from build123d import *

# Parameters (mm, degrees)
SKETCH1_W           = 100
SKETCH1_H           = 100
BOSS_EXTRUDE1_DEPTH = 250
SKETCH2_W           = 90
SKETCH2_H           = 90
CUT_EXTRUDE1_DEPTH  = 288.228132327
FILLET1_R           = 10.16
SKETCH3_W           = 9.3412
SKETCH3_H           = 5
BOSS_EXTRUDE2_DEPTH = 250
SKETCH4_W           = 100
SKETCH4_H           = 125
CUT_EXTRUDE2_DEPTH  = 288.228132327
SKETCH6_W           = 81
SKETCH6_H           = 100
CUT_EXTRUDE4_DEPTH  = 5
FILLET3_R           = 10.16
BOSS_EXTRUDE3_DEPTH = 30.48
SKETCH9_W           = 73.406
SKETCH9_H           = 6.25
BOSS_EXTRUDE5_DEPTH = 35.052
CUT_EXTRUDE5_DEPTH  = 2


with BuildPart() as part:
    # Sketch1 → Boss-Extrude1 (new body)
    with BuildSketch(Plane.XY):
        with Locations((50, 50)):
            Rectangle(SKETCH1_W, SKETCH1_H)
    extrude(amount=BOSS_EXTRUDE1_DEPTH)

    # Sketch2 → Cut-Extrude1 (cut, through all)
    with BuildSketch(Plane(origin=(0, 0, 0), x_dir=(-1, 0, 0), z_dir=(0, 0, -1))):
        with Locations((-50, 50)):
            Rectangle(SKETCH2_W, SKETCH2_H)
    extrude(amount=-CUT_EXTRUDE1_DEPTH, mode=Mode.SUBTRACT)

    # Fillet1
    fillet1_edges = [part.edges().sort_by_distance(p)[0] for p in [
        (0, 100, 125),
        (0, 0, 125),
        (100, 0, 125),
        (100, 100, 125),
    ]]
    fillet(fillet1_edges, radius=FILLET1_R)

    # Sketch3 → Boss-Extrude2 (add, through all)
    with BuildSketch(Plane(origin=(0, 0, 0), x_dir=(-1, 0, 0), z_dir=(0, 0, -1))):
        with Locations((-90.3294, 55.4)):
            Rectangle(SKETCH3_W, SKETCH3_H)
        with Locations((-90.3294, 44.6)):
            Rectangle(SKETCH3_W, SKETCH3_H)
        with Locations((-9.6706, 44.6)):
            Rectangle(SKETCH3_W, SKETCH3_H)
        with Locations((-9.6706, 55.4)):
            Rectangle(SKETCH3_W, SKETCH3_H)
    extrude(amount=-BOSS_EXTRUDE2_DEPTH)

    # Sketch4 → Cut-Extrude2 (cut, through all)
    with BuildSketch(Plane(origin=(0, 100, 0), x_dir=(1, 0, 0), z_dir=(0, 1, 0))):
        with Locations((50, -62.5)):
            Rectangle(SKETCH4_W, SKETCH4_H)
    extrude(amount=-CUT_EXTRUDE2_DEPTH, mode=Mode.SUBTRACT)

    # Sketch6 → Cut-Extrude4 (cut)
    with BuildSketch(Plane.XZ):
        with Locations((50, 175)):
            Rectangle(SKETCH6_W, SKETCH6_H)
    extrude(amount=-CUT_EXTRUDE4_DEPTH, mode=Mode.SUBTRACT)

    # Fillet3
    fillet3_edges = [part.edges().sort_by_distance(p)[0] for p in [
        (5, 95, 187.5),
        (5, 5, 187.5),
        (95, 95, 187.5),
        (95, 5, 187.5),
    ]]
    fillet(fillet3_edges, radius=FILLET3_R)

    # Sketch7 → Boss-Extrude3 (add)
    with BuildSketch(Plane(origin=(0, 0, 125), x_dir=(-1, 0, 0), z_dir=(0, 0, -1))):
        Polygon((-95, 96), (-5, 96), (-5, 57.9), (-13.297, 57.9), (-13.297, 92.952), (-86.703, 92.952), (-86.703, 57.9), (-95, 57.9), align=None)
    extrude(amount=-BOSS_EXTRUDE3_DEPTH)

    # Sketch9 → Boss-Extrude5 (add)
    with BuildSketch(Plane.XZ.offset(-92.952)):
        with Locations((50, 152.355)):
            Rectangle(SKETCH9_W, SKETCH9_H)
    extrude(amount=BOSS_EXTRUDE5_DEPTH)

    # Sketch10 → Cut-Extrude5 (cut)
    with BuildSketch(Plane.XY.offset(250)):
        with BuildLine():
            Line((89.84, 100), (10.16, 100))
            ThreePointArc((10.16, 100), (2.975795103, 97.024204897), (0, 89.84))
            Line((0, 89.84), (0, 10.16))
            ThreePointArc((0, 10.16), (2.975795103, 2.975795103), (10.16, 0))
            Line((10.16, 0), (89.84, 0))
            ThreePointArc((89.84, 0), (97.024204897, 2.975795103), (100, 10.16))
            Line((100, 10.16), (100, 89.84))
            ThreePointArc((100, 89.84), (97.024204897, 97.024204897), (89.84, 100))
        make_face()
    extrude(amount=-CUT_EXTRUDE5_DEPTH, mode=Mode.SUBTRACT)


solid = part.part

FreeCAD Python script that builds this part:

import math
import FreeCAD as App
import Part
import Sketcher
Q = App.Units.Quantity


def edges_at(feature, points):
    """Names of the edges that pass closest to the given points."""
    edges = feature.Shape.Edges
    near = lambda p: min(range(len(edges)), key=lambda i: edges[i].distToShape(Part.Vertex(*p))[0])
    return sorted({f"Edge{near(p) + 1}" for p in points})

doc = App.newDocument("Part")
body = doc.addObject("PartDesign::Body", "Body")

# Sketch on XY plane
sketch1 = body.newObject("Sketcher::SketchObject", "Sketch")
sketch1.AttachmentSupport = (doc.getObject("XY_Plane"), [""])
sketch1.MapMode = "FlatFace"
sketch1.addGeometry(Part.LineSegment(App.Vector(0, 100, 0), App.Vector(0, 0, 0)), False)
sketch1.addGeometry(Part.LineSegment(App.Vector(0, 0, 0), App.Vector(100, 0, 0)), False)
sketch1.addGeometry(Part.LineSegment(App.Vector(100, 0, 0), App.Vector(100, 100, 0)), False)
sketch1.addGeometry(Part.LineSegment(App.Vector(100, 100, 0), App.Vector(0, 100, 0)), False)
sketch1.addConstraint(Sketcher.Constraint("Coincident", 0, 2, 1, 1))
sketch1.addConstraint(Sketcher.Constraint("Coincident", 1, 2, 2, 1))
sketch1.addConstraint(Sketcher.Constraint("Coincident", 2, 2, 3, 1))
sketch1.addConstraint(Sketcher.Constraint("Coincident", 3, 2, 0, 1))
sketch1.addConstraint(Sketcher.Constraint("Vertical", 0))
sketch1.addConstraint(Sketcher.Constraint("Horizontal", 1))
sketch1.addConstraint(Sketcher.Constraint("Vertical", 2))
sketch1.addConstraint(Sketcher.Constraint("Horizontal", 3))
sketch1.addConstraint(Sketcher.Constraint("Coincident", 0, 2, -1, 1))
sketch1.addConstraint(Sketcher.Constraint("Equal", 3, 0))
sketch1.addConstraint(Sketcher.Constraint("DistanceX", 1, 1, 1, 2, Q("100 mm")))
pad1 = body.newObject("PartDesign::Pad", "Pad")
pad1.Profile = sketch1
pad1.Length = 250

# Sketch on XY plane
sketch2 = body.newObject("Sketcher::SketchObject", "Sketch001")
sketch2.AttachmentSupport = (doc.getObject("XY_Plane"), [""])
sketch2.MapMode = "FlatFace"
sketch2.addGeometry(Part.LineSegment(App.Vector(95, 95, 0), App.Vector(95, 5, 0)), False)
sketch2.addGeometry(Part.LineSegment(App.Vector(95, 5, 0), App.Vector(5, 5, 0)), False)
sketch2.addGeometry(Part.LineSegment(App.Vector(5, 5, 0), App.Vector(5, 95, 0)), False)
sketch2.addGeometry(Part.LineSegment(App.Vector(5, 95, 0), App.Vector(95, 95, 0)), False)
sketch2.addConstraint(Sketcher.Constraint("Coincident", 0, 2, 1, 1))
sketch2.addConstraint(Sketcher.Constraint("Coincident", 1, 2, 2, 1))
sketch2.addConstraint(Sketcher.Constraint("Coincident", 2, 2, 3, 1))
sketch2.addConstraint(Sketcher.Constraint("Coincident", 3, 2, 0, 1))
sketch2.addConstraint(Sketcher.Constraint("Vertical", 0))
sketch2.addConstraint(Sketcher.Constraint("Horizontal", 1))
sketch2.addConstraint(Sketcher.Constraint("Vertical", 2))
sketch2.addConstraint(Sketcher.Constraint("Horizontal", 3))
sketch2.addConstraint(Sketcher.Constraint("Equal", 3, 0))
sketch2.addConstraint(Sketcher.Constraint("DistanceX", 1, 2, 1, 1, Q("90 mm")))
sketch2.addConstraint(Sketcher.Constraint("DistanceX", -1, 1, 0, 2, Q("95 mm")))
sketch2.addConstraint(Sketcher.Constraint("DistanceY", -1, 1, 0, 2, Q("5 mm")))
pocket1 = body.newObject("PartDesign::Pocket", "Pocket")
pocket1.Profile = sketch2
pocket1.Type = "ThroughAll"
pocket1.Reversed = True
doc.recompute()

fillet = body.newObject("PartDesign::Fillet", "Fillet")
fillet.Base = (pocket1, edges_at(pocket1, [
    (0, 100, 125),
    (0, 0, 125),
    (100, 0, 125),
    (100, 100, 125),
]))
fillet.Radius = 10.16

# Sketch on XY plane
sketch3 = body.newObject("Sketcher::SketchObject", "Sketch002")
sketch3.AttachmentSupport = (doc.getObject("XY_Plane"), [""])
sketch3.MapMode = "FlatFace"
sketch3.addGeometry(Part.LineSegment(App.Vector(95, 58, 0), App.Vector(95, 53, 0)), False)
sketch3.addGeometry(Part.LineSegment(App.Vector(95, 53, 0), App.Vector(86, 53, 0)), False)
sketch3.addGeometry(Part.LineSegment(App.Vector(86, 53, 0), App.Vector(86, 58, 0)), False)
sketch3.addGeometry(Part.LineSegment(App.Vector(86, 58, 0), App.Vector(95, 58, 0)), False)
sketch3.addGeometry(Part.LineSegment(App.Vector(95, 47, 0), App.Vector(95, 42, 0)), False)
sketch3.addGeometry(Part.LineSegment(App.Vector(95, 42, 0), App.Vector(86, 42, 0)), False)
sketch3.addGeometry(Part.LineSegment(App.Vector(86, 42, 0), App.Vector(86, 47, 0)), False)
sketch3.addGeometry(Part.LineSegment(App.Vector(86, 47, 0), App.Vector(95, 47, 0)), False)
sketch3.addGeometry(Part.LineSegment(App.Vector(14, 47, 0), App.Vector(14, 42, 0)), False)
sketch3.addGeometry(Part.LineSegment(App.Vector(14, 42, 0), App.Vector(5, 42, 0)), False)
sketch3.addGeometry(Part.LineSegment(App.Vector(5, 42, 0), App.Vector(5, 47, 0)), False)
sketch3.addGeometry(Part.LineSegment(App.Vector(5, 47, 0), App.Vector(14, 47, 0)), False)
sketch3.addGeometry(Part.LineSegment(App.Vector(14, 58, 0), App.Vector(14, 53, 0)), False)
sketch3.addGeometry(Part.LineSegment(App.Vector(14, 53, 0), App.Vector(5, 53, 0)), False)
sketch3.addGeometry(Part.LineSegment(App.Vector(5, 53, 0), App.Vector(5, 58, 0)), False)
sketch3.addGeometry(Part.LineSegment(App.Vector(5, 58, 0), App.Vector(14, 58, 0)), False)
sketch3.addConstraint(Sketcher.Constraint("Coincident", 0, 2, 1, 1))
sketch3.addConstraint(Sketcher.Constraint("Coincident", 1, 2, 2, 1))
sketch3.addConstraint(Sketcher.Constraint("Coincident", 2, 2, 3, 1))
sketch3.addConstraint(Sketcher.Constraint("Coincident", 3, 2, 0, 1))
sketch3.addConstraint(Sketcher.Constraint("Coincident", 4, 2, 5, 1))
sketch3.addConstraint(Sketcher.Constraint("Coincident", 5, 2, 6, 1))
sketch3.addConstraint(Sketcher.Constraint("Coincident", 6, 2, 7, 1))
sketch3.addConstraint(Sketcher.Constraint("Coincident", 7, 2, 4, 1))
sketch3.addConstraint(Sketcher.Constraint("Coincident", 8, 2, 9, 1))
sketch3.addConstraint(Sketcher.Constraint("Coincident", 9, 2, 10, 1))
sketch3.addConstraint(Sketcher.Constraint("Coincident", 10, 2, 11, 1))
sketch3.addConstraint(Sketcher.Constraint("Coincident", 11, 2, 8, 1))
sketch3.addConstraint(Sketcher.Constraint("Coincident", 12, 2, 13, 1))
sketch3.addConstraint(Sketcher.Constraint("Coincident", 13, 2, 14, 1))
sketch3.addConstraint(Sketcher.Constraint("Coincident", 14, 2, 15, 1))
sketch3.addConstraint(Sketcher.Constraint("Coincident", 15, 2, 12, 1))
sketch3.addConstraint(Sketcher.Constraint("Vertical", 0))
sketch3.addConstraint(Sketcher.Constraint("Horizontal", 1))
sketch3.addConstraint(Sketcher.Constraint("Vertical", 2))
sketch3.addConstraint(Sketcher.Constraint("Horizontal", 3))
sketch3.addConstraint(Sketcher.Constraint("Vertical", 4))
sketch3.addConstraint(Sketcher.Constraint("Horizontal", 5))
sketch3.addConstraint(Sketcher.Constraint("Vertical", 6))
sketch3.addConstraint(Sketcher.Constraint("Horizontal", 7))
sketch3.addConstraint(Sketcher.Constraint("Vertical", 8))
sketch3.addConstraint(Sketcher.Constraint("Horizontal", 9))
sketch3.addConstraint(Sketcher.Constraint("Vertical", 10))
sketch3.addConstraint(Sketcher.Constraint("Horizontal", 11))
sketch3.addConstraint(Sketcher.Constraint("Vertical", 12))
sketch3.addConstraint(Sketcher.Constraint("Horizontal", 13))
sketch3.addConstraint(Sketcher.Constraint("Vertical", 14))
sketch3.addConstraint(Sketcher.Constraint("Horizontal", 15))
sketch3.addConstraint(Sketcher.Constraint("Horizontal", 5, 2, 8, 2))
sketch3.addConstraint(Sketcher.Constraint("Horizontal", 7, 2, 10, 2))
sketch3.addConstraint(Sketcher.Constraint("Horizontal", 1, 2, 12, 2))
sketch3.addConstraint(Sketcher.Constraint("Horizontal", 3, 2, 14, 2))
sketch3.addConstraint(Sketcher.Constraint("Vertical", 3, 2, 4, 2))
sketch3.addConstraint(Sketcher.Constraint("Vertical", 2, 2, 5, 2))
sketch3.addConstraint(Sketcher.Constraint("Vertical", 11, 2, 12, 2))
sketch3.addConstraint(Sketcher.Constraint("Vertical", 10, 2, 13, 2))
sketch3.addConstraint(Sketcher.Constraint("Equal", 7, 9))
sketch3.addConstraint(Sketcher.Constraint("Equal", 2, 4))
sketch3.addConstraint(Sketcher.Constraint("DistanceY", 0, 2, 0, 1, Q("5 mm")))
sketch3.addConstraint(Sketcher.Constraint("DistanceX", -1, 1, 0, 2, Q("95 mm")))
sketch3.addConstraint(Sketcher.Constraint("DistanceX", -1, 1, 9, 2, Q("5 mm")))
sketch3.addConstraint(Sketcher.Constraint("DistanceY", -1, 1, 0, 2, Q("52.9 mm")))
sketch3.addConstraint(Sketcher.Constraint("DistanceY", -1, 1, 4, 2, Q("42.1 mm")))
sketch3.addConstraint(Sketcher.Constraint("DistanceX", 1, 2, 1, 1, Q("9.3412 mm")))
pad2 = body.newObject("PartDesign::Pad", "Pad001")
pad2.Profile = sketch3
pad2.Length = 250

# Sketch on XZ plane
sketch4 = body.newObject("Sketcher::SketchObject", "Sketch003")
sketch4.AttachmentSupport = (doc.getObject("XZ_Plane"), [""])
sketch4.MapMode = "FlatFace"
sketch4.AttachmentOffset = App.Placement(App.Vector(0, 0, -100), App.Rotation())
sketch4.addGeometry(Part.LineSegment(App.Vector(0, 0, 0), App.Vector(0, 125, 0)), False)
sketch4.addGeometry(Part.LineSegment(App.Vector(0, 125, 0), App.Vector(100, 125, 0)), False)
sketch4.addGeometry(Part.LineSegment(App.Vector(100, 125, 0), App.Vector(100, 0, 0)), False)
sketch4.addGeometry(Part.LineSegment(App.Vector(100, 0, 0), App.Vector(0, 0, 0)), False)
sketch4.addConstraint(Sketcher.Constraint("Coincident", 0, 2, 1, 1))
sketch4.addConstraint(Sketcher.Constraint("Coincident", 1, 2, 2, 1))
sketch4.addConstraint(Sketcher.Constraint("Coincident", 2, 2, 3, 1))
sketch4.addConstraint(Sketcher.Constraint("Coincident", 3, 2, 0, 1))
sketch4.addConstraint(Sketcher.Constraint("Vertical", 0))
sketch4.addConstraint(Sketcher.Constraint("Horizontal", 1))
sketch4.addConstraint(Sketcher.Constraint("Vertical", 2))
sketch4.addConstraint(Sketcher.Constraint("Horizontal", 3))
sketch4.addConstraint(Sketcher.Constraint("Coincident", 3, 2, -1, 1))
sketch4.addConstraint(Sketcher.Constraint("DistanceX", 1, 1, 1, 2, Q("100 mm")))
sketch4.addConstraint(Sketcher.Constraint("DistanceY", 0, 1, 0, 2, Q("125 mm")))
pocket2 = body.newObject("PartDesign::Pocket", "Pocket001")
pocket2.Profile = sketch4
pocket2.Type = "ThroughAll"
pocket2.Reversed = True

# Sketch on XZ plane
sketch5 = body.newObject("Sketcher::SketchObject", "Sketch004")
sketch5.AttachmentSupport = (doc.getObject("XZ_Plane"), [""])
sketch5.MapMode = "FlatFace"
sketch5.addGeometry(Part.LineSegment(App.Vector(10, 225, 0), App.Vector(10, 125, 0)), False)
sketch5.addGeometry(Part.LineSegment(App.Vector(10, 125, 0), App.Vector(90, 125, 0)), False)
sketch5.addGeometry(Part.LineSegment(App.Vector(90, 125, 0), App.Vector(90, 225, 0)), False)
sketch5.addGeometry(Part.LineSegment(App.Vector(90, 225, 0), App.Vector(10, 225, 0)), False)
sketch5.addConstraint(Sketcher.Constraint("Coincident", 0, 2, 1, 1))
sketch5.addConstraint(Sketcher.Constraint("Coincident", 1, 2, 2, 1))
sketch5.addConstraint(Sketcher.Constraint("Coincident", 2, 2, 3, 1))
sketch5.addConstraint(Sketcher.Constraint("Coincident", 3, 2, 0, 1))
sketch5.addConstraint(Sketcher.Constraint("Vertical", 0))
sketch5.addConstraint(Sketcher.Constraint("Horizontal", 1))
sketch5.addConstraint(Sketcher.Constraint("Vertical", 2))
sketch5.addConstraint(Sketcher.Constraint("Horizontal", 3))
sketch5.addConstraint(Sketcher.Constraint("DistanceX", 1, 1, 1, 2, Q("81 mm")))
sketch5.addConstraint(Sketcher.Constraint("DistanceY", 0, 2, 0, 1, Q("100 mm")))
sketch5.addConstraint(Sketcher.Constraint("DistanceY", -1, 1, 0, 2, Q("125 mm")))
sketch5.addConstraint(Sketcher.Constraint("DistanceX", -1, 1, 0, 2, Q("9.5 mm")))
pocket3 = body.newObject("PartDesign::Pocket", "Pocket002")
pocket3.Profile = sketch5
pocket3.Length = 5
doc.recompute()

fillet2 = body.newObject("PartDesign::Fillet", "Fillet001")
fillet2.Base = (pocket3, edges_at(pocket3, [
    (5, 95, 187.5),
    (5, 5, 187.5),
    (95, 95, 187.5),
    (95, 5, 187.5),
]))
fillet2.Radius = 10.16

# Sketch on XY plane
sketch6 = body.newObject("Sketcher::SketchObject", "Sketch005")
sketch6.AttachmentSupport = (doc.getObject("XY_Plane"), [""])
sketch6.MapMode = "FlatFace"
sketch6.AttachmentOffset = App.Placement(App.Vector(0, 0, 125), App.Rotation())
sketch6.addGeometry(Part.LineSegment(App.Vector(5, 96, 0), App.Vector(95, 96, 0)), False)
sketch6.addGeometry(Part.LineSegment(App.Vector(95, 96, 0), App.Vector(95, 58, 0)), False)
sketch6.addGeometry(Part.LineSegment(App.Vector(95, 58, 0), App.Vector(87, 58, 0)), False)
sketch6.addGeometry(Part.LineSegment(App.Vector(87, 58, 0), App.Vector(87, 93, 0)), False)
sketch6.addGeometry(Part.LineSegment(App.Vector(87, 93, 0), App.Vector(13, 93, 0)), False)
sketch6.addGeometry(Part.LineSegment(App.Vector(13, 93, 0), App.Vector(13, 58, 0)), False)
sketch6.addGeometry(Part.LineSegment(App.Vector(13, 58, 0), App.Vector(5, 58, 0)), False)
sketch6.addGeometry(Part.LineSegment(App.Vector(5, 58, 0), App.Vector(5, 96, 0)), False)
sketch6.addConstraint(Sketcher.Constraint("Coincident", 0, 2, 1, 1))
sketch6.addConstraint(Sketcher.Constraint("Coincident", 1, 2, 2, 1))
sketch6.addConstraint(Sketcher.Constraint("Coincident", 2, 2, 3, 1))
sketch6.addConstraint(Sketcher.Constraint("Coincident", 3, 2, 4, 1))
sketch6.addConstraint(Sketcher.Constraint("Coincident", 4, 2, 5, 1))
sketch6.addConstraint(Sketcher.Constraint("Coincident", 5, 2, 6, 1))
sketch6.addConstraint(Sketcher.Constraint("Coincident", 6, 2, 7, 1))
sketch6.addConstraint(Sketcher.Constraint("Coincident", 7, 2, 0, 1))
sketch6.addConstraint(Sketcher.Constraint("Horizontal", 0))
sketch6.addConstraint(Sketcher.Constraint("Vertical", 1))
sketch6.addConstraint(Sketcher.Constraint("Horizontal", 2))
sketch6.addConstraint(Sketcher.Constraint("Vertical", 3))
sketch6.addConstraint(Sketcher.Constraint("Horizontal", 4))
sketch6.addConstraint(Sketcher.Constraint("Vertical", 5))
sketch6.addConstraint(Sketcher.Constraint("Horizontal", 6))
sketch6.addConstraint(Sketcher.Constraint("Vertical", 7))
sketch6.addConstraint(Sketcher.Constraint("Horizontal", 2, 2, 5, 2))
sketch6.addConstraint(Sketcher.Constraint("Equal", 2, 6))
sketch6.addConstraint(Sketcher.Constraint("DistanceX", 0, 1, 0, 2, Q("90 mm")))
sketch6.addConstraint(Sketcher.Constraint("DistanceY", 1, 2, 1, 1, Q("38.1 mm")))
sketch6.addConstraint(Sketcher.Constraint("DistanceX", -1, 1, 0, 2, Q("95 mm")))
sketch6.addConstraint(Sketcher.Constraint("DistanceY", -1, 1, 0, 2, Q("96 mm")))
sketch6.addConstraint(Sketcher.Constraint("DistanceX", 2, 2, 2, 1, Q("8.297 mm")))
sketch6.addConstraint(Sketcher.Constraint("DistanceY", 3, 1, 3, 2, Q("35.052 mm")))
pad3 = body.newObject("PartDesign::Pad", "Pad002")
pad3.Profile = sketch6
pad3.Length = 30.48

# Sketch on XZ plane
sketch7 = body.newObject("Sketcher::SketchObject", "Sketch006")
sketch7.AttachmentSupport = (doc.getObject("XZ_Plane"), [""])
sketch7.MapMode = "FlatFace"
sketch7.AttachmentOffset = App.Placement(App.Vector(0, 0, -92.952), App.Rotation())
sketch7.addGeometry(Part.LineSegment(App.Vector(13, 155, 0), App.Vector(13, 149, 0)), False)
sketch7.addGeometry(Part.LineSegment(App.Vector(13, 149, 0), App.Vector(87, 149, 0)), False)
sketch7.addGeometry(Part.LineSegment(App.Vector(87, 149, 0), App.Vector(87, 155, 0)), False)
sketch7.addGeometry(Part.LineSegment(App.Vector(87, 155, 0), App.Vector(13, 155, 0)), False)
sketch7.addConstraint(Sketcher.Constraint("Coincident", 0, 2, 1, 1))
sketch7.addConstraint(Sketcher.Constraint("Coincident", 1, 2, 2, 1))
sketch7.addConstraint(Sketcher.Constraint("Coincident", 2, 2, 3, 1))
sketch7.addConstraint(Sketcher.Constraint("Coincident", 3, 2, 0, 1))
sketch7.addConstraint(Sketcher.Constraint("Vertical", 0))
sketch7.addConstraint(Sketcher.Constraint("Horizontal", 1))
sketch7.addConstraint(Sketcher.Constraint("Vertical", 2))
sketch7.addConstraint(Sketcher.Constraint("Horizontal", 3))
sketch7.addConstraint(Sketcher.Constraint("DistanceY", 0, 2, 0, 1, Q("6.25 mm")))
sketch7.addConstraint(Sketcher.Constraint("DistanceX", 1, 1, 1, 2, Q("73.406 mm")))
sketch7.addConstraint(Sketcher.Constraint("DistanceY", -1, 1, 0, 2, Q("149.23 mm")))
sketch7.addConstraint(Sketcher.Constraint("DistanceX", -1, 1, 0, 2, Q("13.297 mm")))
pad4 = body.newObject("PartDesign::Pad", "Pad003")
pad4.Profile = sketch7
pad4.Length = 35.052

# Sketch on XY plane
sketch8 = body.newObject("Sketcher::SketchObject", "Sketch007")
sketch8.AttachmentSupport = (doc.getObject("XY_Plane"), [""])
sketch8.MapMode = "FlatFace"
sketch8.AttachmentOffset = App.Placement(App.Vector(0, 0, 250), App.Rotation())
sketch8.addGeometry(Part.LineSegment(App.Vector(90, 100, 0), App.Vector(10, 100, 0)), False)
sketch8.addGeometry(Part.ArcOfCircle(Part.Circle(App.Vector(10, 90, 0), App.Vector(0, 0, 1), 10), math.radians(90), math.radians(180)), False)
sketch8.addGeometry(Part.LineSegment(App.Vector(0, 90, 0), App.Vector(0, 10, 0)), False)
sketch8.addGeometry(Part.ArcOfCircle(Part.Circle(App.Vector(10, 10, 0), App.Vector(0, 0, 1), 10), math.radians(180), math.radians(270)), False)
sketch8.addGeometry(Part.LineSegment(App.Vector(10, 0, 0), App.Vector(90, 0, 0)), False)
sketch8.addGeometry(Part.ArcOfCircle(Part.Circle(App.Vector(90, 10, 0), App.Vector(0, 0, 1), 10), math.radians(-90), math.radians(0)), False)
sketch8.addGeometry(Part.LineSegment(App.Vector(100, 10, 0), App.Vector(100, 90, 0)), False)
sketch8.addGeometry(Part.ArcOfCircle(Part.Circle(App.Vector(90, 90, 0), App.Vector(0, 0, 1), 10), math.radians(0), math.radians(90)), False)
sketch8.addConstraint(Sketcher.Constraint("Tangent", 0, 2, 1, 1))
sketch8.addConstraint(Sketcher.Constraint("Tangent", 1, 2, 2, 1))
sketch8.addConstraint(Sketcher.Constraint("Tangent", 2, 2, 3, 1))
sketch8.addConstraint(Sketcher.Constraint("Tangent", 3, 2, 4, 1))
sketch8.addConstraint(Sketcher.Constraint("Tangent", 4, 2, 5, 1))
sketch8.addConstraint(Sketcher.Constraint("Tangent", 5, 2, 6, 1))
sketch8.addConstraint(Sketcher.Constraint("Tangent", 6, 2, 7, 1))
sketch8.addConstraint(Sketcher.Constraint("Tangent", 7, 2, 0, 1))
sketch8.addConstraint(Sketcher.Constraint("Horizontal", 0))
sketch8.addConstraint(Sketcher.Constraint("Vertical", 2))
sketch8.addConstraint(Sketcher.Constraint("Horizontal", 4))
sketch8.addConstraint(Sketcher.Constraint("Vertical", 6))
sketch8.addConstraint(Sketcher.Constraint("Equal", 1, 3))
sketch8.addConstraint(Sketcher.Constraint("Equal", 3, 5))
sketch8.addConstraint(Sketcher.Constraint("Equal", 5, 7))
sketch8.addConstraint(Sketcher.Constraint("PointOnObject", 1, 2, -2))
sketch8.addConstraint(Sketcher.Constraint("PointOnObject", 3, 2, -1))
sketch8.addConstraint(Sketcher.Constraint("Equal", 4, 2))
sketch8.addConstraint(Sketcher.Constraint("Radius", 1, Q("10.16 mm")))
sketch8.addConstraint(Sketcher.Constraint("DistanceY", -1, 1, 0, 2, Q("100 mm")))
pocket4 = body.newObject("PartDesign::Pocket", "Pocket003")
pocket4.Profile = sketch8
pocket4.Length = 2

doc.recompute()
